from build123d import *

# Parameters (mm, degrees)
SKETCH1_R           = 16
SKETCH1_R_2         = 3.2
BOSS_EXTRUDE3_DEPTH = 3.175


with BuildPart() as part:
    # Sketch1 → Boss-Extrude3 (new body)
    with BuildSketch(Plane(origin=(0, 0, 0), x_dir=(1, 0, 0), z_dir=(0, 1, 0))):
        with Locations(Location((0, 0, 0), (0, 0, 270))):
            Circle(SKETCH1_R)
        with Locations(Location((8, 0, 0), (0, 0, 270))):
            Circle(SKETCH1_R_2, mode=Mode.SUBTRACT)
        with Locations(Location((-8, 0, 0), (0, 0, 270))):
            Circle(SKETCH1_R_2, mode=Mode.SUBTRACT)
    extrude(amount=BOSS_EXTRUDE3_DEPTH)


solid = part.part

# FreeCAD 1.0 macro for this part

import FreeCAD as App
import Part
import Sketcher
Q = App.Units.Quantity

doc = App.newDocument("Part")
body = doc.addObject("PartDesign::Body", "Body")

sketch1 = body.newObject("Sketcher::SketchObject", "Sketch")
sketch1.AttachmentSupport = (doc.getObject("XZ_Plane"), [""])
sketch1.MapMode = "FlatFace"
sketch1.addGeometry([
    Part.Circle(App.Vector(0, 0, 0), App.Vector(0, 0, 1), 16),
    Part.Circle(App.Vector(-8, 0, 0), App.Vector(0, 0, 1), 3.2),
    Part.Circle(App.Vector(8, 0, 0), App.Vector(0, 0, 1), 3.2),
], False)
sketch1.addConstraint([
    Sketcher.Constraint("Coincident", 0, 3, -1, 1),
    Sketcher.Constraint("Equal", 1, 2),
    Sketcher.Constraint("Symmetric", 1, 3, 2, 3, -1, 1),
    Sketcher.Constraint("PointOnObject", 1, 3, -1),
    Sketcher.Constraint("Diameter", 0, Q("32 mm")),
    Sketcher.Constraint("Diameter", 1, Q("6.4 mm")),
    Sketcher.Constraint("DistanceX", 1, 3, -1, 1, Q("8 mm")),
])
pad1 = body.newObject("PartDesign::Pad", "Pad")
pad1.Profile = sketch1
pad1.Length = 3.175
pad1.Reversed = True

doc.recompute()
